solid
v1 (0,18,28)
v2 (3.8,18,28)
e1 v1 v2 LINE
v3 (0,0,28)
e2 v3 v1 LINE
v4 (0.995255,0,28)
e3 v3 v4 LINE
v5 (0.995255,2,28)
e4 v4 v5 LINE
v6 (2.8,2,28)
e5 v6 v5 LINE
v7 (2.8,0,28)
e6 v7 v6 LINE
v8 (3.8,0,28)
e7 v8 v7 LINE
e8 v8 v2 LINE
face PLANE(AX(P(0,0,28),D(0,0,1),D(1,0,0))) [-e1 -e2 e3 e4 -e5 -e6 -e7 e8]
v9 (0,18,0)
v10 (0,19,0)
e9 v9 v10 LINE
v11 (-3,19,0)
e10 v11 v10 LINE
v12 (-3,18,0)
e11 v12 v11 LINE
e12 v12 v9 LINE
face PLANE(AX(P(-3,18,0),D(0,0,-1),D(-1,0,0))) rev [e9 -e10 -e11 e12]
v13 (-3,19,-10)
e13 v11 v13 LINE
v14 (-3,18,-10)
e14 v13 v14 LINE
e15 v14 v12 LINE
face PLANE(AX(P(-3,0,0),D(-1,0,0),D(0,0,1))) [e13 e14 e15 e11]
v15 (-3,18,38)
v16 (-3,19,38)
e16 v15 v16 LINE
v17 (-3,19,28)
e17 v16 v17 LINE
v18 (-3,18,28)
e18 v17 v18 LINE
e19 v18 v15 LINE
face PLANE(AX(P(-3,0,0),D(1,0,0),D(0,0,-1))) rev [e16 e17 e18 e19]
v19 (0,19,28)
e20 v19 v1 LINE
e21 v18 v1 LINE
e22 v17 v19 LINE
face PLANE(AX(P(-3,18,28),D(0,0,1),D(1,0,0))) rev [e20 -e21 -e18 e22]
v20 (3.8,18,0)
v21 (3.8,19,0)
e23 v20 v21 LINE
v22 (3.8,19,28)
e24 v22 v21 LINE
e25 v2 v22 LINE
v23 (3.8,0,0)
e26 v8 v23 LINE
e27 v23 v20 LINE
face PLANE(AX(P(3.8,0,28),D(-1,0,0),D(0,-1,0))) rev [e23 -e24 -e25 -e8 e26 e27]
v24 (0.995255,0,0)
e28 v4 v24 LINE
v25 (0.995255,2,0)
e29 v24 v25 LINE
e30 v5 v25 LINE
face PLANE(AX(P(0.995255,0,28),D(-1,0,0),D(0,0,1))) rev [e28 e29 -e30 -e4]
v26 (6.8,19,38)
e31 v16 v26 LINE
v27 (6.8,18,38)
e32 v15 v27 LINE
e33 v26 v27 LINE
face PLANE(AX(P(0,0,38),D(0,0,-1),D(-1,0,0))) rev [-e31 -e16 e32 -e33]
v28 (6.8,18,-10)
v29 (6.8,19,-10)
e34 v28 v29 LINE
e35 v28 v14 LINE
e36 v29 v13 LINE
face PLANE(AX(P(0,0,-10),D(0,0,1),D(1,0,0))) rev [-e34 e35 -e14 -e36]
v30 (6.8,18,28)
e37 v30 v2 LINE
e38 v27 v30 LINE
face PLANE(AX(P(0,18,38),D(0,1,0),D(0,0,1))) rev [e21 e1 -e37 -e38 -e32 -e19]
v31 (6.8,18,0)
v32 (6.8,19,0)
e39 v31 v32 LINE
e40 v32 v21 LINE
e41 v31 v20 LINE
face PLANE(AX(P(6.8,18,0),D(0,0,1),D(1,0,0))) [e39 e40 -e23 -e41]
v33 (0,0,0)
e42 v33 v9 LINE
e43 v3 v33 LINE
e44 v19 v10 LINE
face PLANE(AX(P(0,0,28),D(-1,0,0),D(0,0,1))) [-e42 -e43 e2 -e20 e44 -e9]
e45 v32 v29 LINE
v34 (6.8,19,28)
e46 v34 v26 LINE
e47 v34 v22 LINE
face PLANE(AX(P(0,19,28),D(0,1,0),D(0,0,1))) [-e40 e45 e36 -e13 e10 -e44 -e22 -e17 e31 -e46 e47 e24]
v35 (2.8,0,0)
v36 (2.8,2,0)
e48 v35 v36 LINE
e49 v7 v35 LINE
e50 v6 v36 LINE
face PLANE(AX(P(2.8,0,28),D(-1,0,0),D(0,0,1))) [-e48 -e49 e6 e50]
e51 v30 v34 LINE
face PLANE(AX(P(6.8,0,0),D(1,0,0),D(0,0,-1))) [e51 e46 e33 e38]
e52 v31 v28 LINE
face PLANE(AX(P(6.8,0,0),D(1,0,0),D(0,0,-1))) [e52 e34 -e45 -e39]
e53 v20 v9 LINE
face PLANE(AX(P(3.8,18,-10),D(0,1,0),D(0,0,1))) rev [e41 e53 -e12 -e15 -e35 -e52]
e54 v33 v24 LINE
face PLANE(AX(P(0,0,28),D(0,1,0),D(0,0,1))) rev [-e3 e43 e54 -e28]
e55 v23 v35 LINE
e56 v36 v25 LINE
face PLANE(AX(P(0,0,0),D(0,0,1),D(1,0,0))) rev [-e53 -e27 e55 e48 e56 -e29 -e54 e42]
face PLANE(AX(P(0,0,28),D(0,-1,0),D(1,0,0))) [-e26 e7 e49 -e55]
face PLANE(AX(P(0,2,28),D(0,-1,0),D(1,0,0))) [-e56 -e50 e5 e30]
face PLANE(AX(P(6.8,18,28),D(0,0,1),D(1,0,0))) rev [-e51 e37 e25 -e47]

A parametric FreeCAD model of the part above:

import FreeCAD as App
import Part
import Sketcher

V = App.Vector

doc = App.newDocument("Part")
body = doc.addObject("PartDesign::Body", "Body")

# Sketch on XY plane
sketch1 = body.newObject("Sketcher::SketchObject", "Sketch")
sketch1.AttachmentSupport = (doc.getObject("XY_Plane"), [""])
sketch1.MapMode = "FlatFace"
sketch1.addGeometry(Part.LineSegment(V(2.8, 0, 0), V(3.8, 0, 0)), False)
sketch1.addGeometry(Part.LineSegment(V(3.8, 0, 0), V(3.8, 19, 0)), False)
sketch1.addGeometry(Part.LineSegment(V(3.8, 19, 0), V(0, 19, 0)), False)
sketch1.addGeometry(Part.LineSegment(V(0, 19, 0), V(0, 0, 0)), False)
sketch1.addGeometry(Part.LineSegment(V(0, 0, 0), V(1, 0, 0)), False)
sketch1.addGeometry(Part.LineSegment(V(1, 0, 0), V(1, 2, 0)), False)
sketch1.addGeometry(Part.LineSegment(V(1, 2, 0), V(2.8, 2, 0)), False)
sketch1.addGeometry(Part.LineSegment(V(2.8, 2, 0), V(2.8, 0, 0)), False)
sketch1.addConstraint(Sketcher.Constraint("Coincident", 0, 2, 1, 1))
sketch1.addConstraint(Sketcher.Constraint("Coincident", 1, 2, 2, 1))
sketch1.addConstraint(Sketcher.Constraint("Coincident", 2, 2, 3, 1))
sketch1.addConstraint(Sketcher.Constraint("Coincident", 3, 2, 4, 1))
sketch1.addConstraint(Sketcher.Constraint("Coincident", 4, 2, 5, 1))
sketch1.addConstraint(Sketcher.Constraint("Coincident", 5, 2, 6, 1))
sketch1.addConstraint(Sketcher.Constraint("Coincident", 6, 2, 7, 1))
sketch1.addConstraint(Sketcher.Constraint("Coincident", 7, 2, 0, 1))
sketch1.addConstraint(Sketcher.Constraint("Horizontal", 0))
sketch1.addConstraint(Sketcher.Constraint("Vertical", 1))
sketch1.addConstraint(Sketcher.Constraint("Horizontal", 2))
sketch1.addConstraint(Sketcher.Constraint("Vertical", 3))
sketch1.addConstraint(Sketcher.Constraint("Horizontal", 4))
sketch1.addConstraint(Sketcher.Constraint("Vertical", 5))
sketch1.addConstraint(Sketcher.Constraint("Horizontal", 6))
sketch1.addConstraint(Sketcher.Constraint("Vertical", 7))
sketch1.addConstraint(Sketcher.Constraint("Coincident", 3, 2, -1, 1))
sketch1.addConstraint(Sketcher.Constraint("PointOnObject", 0, 2, -1))
sketch1.addConstraint(Sketcher.Constraint("DistanceX", 0, 1, 0, 2, 1.0))
sketch1.addConstraint(Sketcher.Constraint("DistanceY", 1, 1, 1, 2, 19.0))
sketch1.addConstraint(Sketcher.Constraint("DistanceY", 5, 1, 5, 2, 2.0))
sketch1.addConstraint(Sketcher.Constraint("DistanceX", 2, 2, 2, 1, 3.8))
sketch1.addConstraint(Sketcher.Constraint("DistanceX", 4, 1, 4, 2, 0.995255))
pad1 = body.newObject("PartDesign::Pad", "Pad")
pad1.Profile = sketch1
pad1.Length = 28

# Sketch on XY plane
sketch2 = body.newObject("Sketcher::SketchObject", "Sketch001")
sketch2.AttachmentSupport = (doc.getObject("XY_Plane"), [""])
sketch2.MapMode = "FlatFace"
sketch2.AttachmentOffset = App.Placement(V(0, 0, 28), App.Rotation())
sketch2.addGeometry(Part.LineSegment(V(0, 19, 0), V(0, 18, 0)), False)
sketch2.addGeometry(Part.LineSegment(V(0, 18, 0), V(3.8, 18, 0)), False)
sketch2.addGeometry(Part.LineSegment(V(3.8, 18, 0), V(3.8, 19, 0)), False)
sketch2.addGeometry(Part.LineSegment(V(3.8, 19, 0), V(0, 19, 0)), False)
sketch2.addConstraint(Sketcher.Constraint("Coincident", 0, 2, 1, 1))
sketch2.addConstraint(Sketcher.Constraint("Coincident", 1, 2, 2, 1))
sketch2.addConstraint(Sketcher.Constraint("Coincident", 2, 2, 3, 1))
sketch2.addConstraint(Sketcher.Constraint("Coincident", 3, 2, 0, 1))
sketch2.addConstraint(Sketcher.Constraint("Vertical", 0))
sketch2.addConstraint(Sketcher.Constraint("Horizontal", 1))
sketch2.addConstraint(Sketcher.Constraint("Vertical", 2))
sketch2.addConstraint(Sketcher.Constraint("Horizontal", 3))
sketch2.addConstraint(Sketcher.Constraint("PointOnObject", 0, 2, -2))
sketch2.addConstraint(Sketcher.Constraint("DistanceY", 0, 2, 0, 1, 1.0))
sketch2.addConstraint(Sketcher.Constraint("DistanceX", 1, 1, 1, 2, 3.8))
sketch2.addConstraint(Sketcher.Constraint("DistanceY", -1, 1, 0, 2, 18.0))
pad2 = body.newObject("PartDesign::Pad", "Pad001")
pad2.Profile = sketch2
pad2.Length = 10

# Sketch on XY plane
sketch3 = body.newObject("Sketcher::SketchObject", "Sketch002")
sketch3.AttachmentSupport = (doc.getObject("XY_Plane"), [""])
sketch3.MapMode = "FlatFace"
sketch3.addGeometry(Part.LineSegment(V(3.8, 19, 0), V(3.8, 18, 0)), False)
sketch3.addGeometry(Part.LineSegment(V(3.8, 18, 0), V(0, 18, 0)), False)
sketch3.addGeometry(Part.LineSegment(V(0, 18, 0), V(0, 19, 0)), False)
sketch3.addGeometry(Part.LineSegment(V(0, 19, 0), V(3.8, 19, 0)), False)
sketch3.addConstraint(Sketcher.Constraint("Coincident", 0, 2, 1, 1))
sketch3.addConstraint(Sketcher.Constraint("Coincident", 1, 2, 2, 1))
sketch3.addConstraint(Sketcher.Constraint("Coincident", 2, 2, 3, 1))
sketch3.addConstraint(Sketcher.Constraint("Coincident", 3, 2, 0, 1))
sketch3.addConstraint(Sketcher.Constraint("Vertical", 0))
sketch3.addConstraint(Sketcher.Constraint("Horizontal", 1))
sketch3.addConstraint(Sketcher.Constraint("Vertical", 2))
sketch3.addConstraint(Sketcher.Constraint("Horizontal", 3))
sketch3.addConstraint(Sketcher.Constraint("PointOnObject", 1, 2, -2))
sketch3.addConstraint(Sketcher.Constraint("DistanceY", 0, 2, 0, 1, 1.0))
sketch3.addConstraint(Sketcher.Constraint("DistanceX", 1, 2, 1, 1, 3.8))
sketch3.addConstraint(Sketcher.Constraint("DistanceY", -1, 1, 0, 2, 18.0))
pad3 = body.newObject("PartDesign::Pad", "Pad002")
pad3.Profile = sketch3
pad3.Length = 10
pad3.Reversed = True

# Sketch on YZ plane
sketch4 = body.newObject("Sketcher::SketchObject", "Sketch003")
sketch4.AttachmentSupport = (doc.getObject("YZ_Plane"), [""])
sketch4.MapMode = "FlatFace"
sketch4.AttachmentOffset = App.Placement(V(0, 0, 3.8), App.Rotation())
sketch4.addGeometry(Part.LineSegment(V(19, 0, 0), V(18, 0, 0)), False)
sketch4.addGeometry(Part.LineSegment(V(18, 0, 0), V(18, -10, 0)), False)
sketch4.addGeometry(Part.LineSegment(V(18, -10, 0), V(19, -10, 0)), False)
sketch4.addGeometry(Part.LineSegment(V(19, -10, 0), V(19, 0, 0)), False)
sketch4.addConstraint(Sketcher.Constraint("Coincident", 0, 2, 1, 1))
sketch4.addConstraint(Sketcher.Constraint("Coincident", 1, 2, 2, 1))
sketch4.addConstraint(Sketcher.Constraint("Coincident", 2, 2, 3, 1))
sketch4.addConstraint(Sketcher.Constraint("Coincident", 3, 2, 0, 1))
sketch4.addConstraint(Sketcher.Constraint("Horizontal", 0))
sketch4.addConstraint(Sketcher.Constraint("Vertical", 1))
sketch4.addConstraint(Sketcher.Constraint("Horizontal", 2))
sketch4.addConstraint(Sketcher.Constraint("Vertical", 3))
sketch4.addConstraint(Sketcher.Constraint("PointOnObject", 0, 2, -1))
sketch4.addConstraint(Sketcher.Constraint("DistanceX", 0, 2, 0, 1, 1.0))
sketch4.addConstraint(Sketcher.Constraint("DistanceY", 1, 2, 1, 1, 10.0))
sketch4.addConstraint(Sketcher.Constraint("DistanceX", -1, 1, 0, 2, 18.0))
pad4 = body.newObject("PartDesign::Pad", "Pad003")
pad4.Profile = sketch4
pad4.Length = 3

# Sketch on YZ plane
sketch5 = body.newObject("Sketcher::SketchObject", "Sketch004")
sketch5.AttachmentSupport = (doc.getObject("YZ_Plane"), [""])
sketch5.MapMode = "FlatFace"
sketch5.addGeometry(Part.LineSegment(V(19, -10, 0), V(18, -10, 0)), False)
sketch5.addGeometry(Part.LineSegment(V(18, -10, 0), V(18, 0, 0)), False)
sketch5.addGeometry(Part.LineSegment(V(18, 0, 0), V(19, 0, 0)), False)
sketch5.addGeometry(Part.LineSegment(V(19, 0, 0), V(19, -10, 0)), False)
sketch5.addConstraint(Sketcher.Constraint("Coincident", 0, 2, 1, 1))
sketch5.addConstraint(Sketcher.Constraint("Coincident", 1, 2, 2, 1))
sketch5.addConstraint(Sketcher.Constraint("Coincident", 2, 2, 3, 1))
sketch5.addConstraint(Sketcher.Constraint("Coincident", 3, 2, 0, 1))
sketch5.addConstraint(Sketcher.Constraint("Horizontal", 0))
sketch5.addConstraint(Sketcher.Constraint("Vertical", 1))
sketch5.addConstraint(Sketcher.Constraint("Horizontal", 2))
sketch5.addConstraint(Sketcher.Constraint("Vertical", 3))
sketch5.addConstraint(Sketcher.Constraint("PointOnObject", 1, 2, -1))
sketch5.addConstraint(Sketcher.Constraint("DistanceX", 0, 2, 0, 1, 1.0))
sketch5.addConstraint(Sketcher.Constraint("DistanceY", 1, 1, 1, 2, 10.0))
sketch5.addConstraint(Sketcher.Constraint("DistanceX", -1, 1, 0, 2, 18.0))
pad5 = body.newObject("PartDesign::Pad", "Pad004")
pad5.Profile = sketch5
pad5.Length = 3
pad5.Reversed = True

# Sketch on YZ plane
sketch6 = body.newObject("Sketcher::SketchObject", "Sketch005")
sketch6.AttachmentSupport = (doc.getObject("YZ_Plane"), [""])
sketch6.MapMode = "FlatFace"
sketch6.addGeometry(Part.LineSegment(V(19, 28, 0), V(18, 28, 0)), False)
sketch6.addGeometry(Part.LineSegment(V(18, 28, 0), V(18, 38, 0)), False)
sketch6.addGeometry(Part.LineSegment(V(18, 38, 0), V(19, 38, 0)), False)
sketch6.addGeometry(Part.LineSegment(V(19, 38, 0), V(19, 28, 0)), False)
sketch6.addConstraint(Sketcher.Constraint("Coincident", 0, 2, 1, 1))
sketch6.addConstraint(Sketcher.Constraint("Coincident", 1, 2, 2, 1))
sketch6.addConstraint(Sketcher.Constraint("Coincident", 2, 2, 3, 1))
sketch6.addConstraint(Sketcher.Constraint("Coincident", 3, 2, 0, 1))
sketch6.addConstraint(Sketcher.Constraint("Horizontal", 0))
sketch6.addConstraint(Sketcher.Constraint("Vertical", 1))
sketch6.addConstraint(Sketcher.Constraint("Horizontal", 2))
sketch6.addConstraint(Sketcher.Constraint("Vertical", 3))
sketch6.addConstraint(Sketcher.Constraint("DistanceX", 0, 2, 0, 1, 1.0))
sketch6.addConstraint(Sketcher.Constraint("DistanceY", 1, 1, 1, 2, 10.0))
sketch6.addConstraint(Sketcher.Constraint("DistanceX", -1, 1, 0, 2, 18.0))
sketch6.addConstraint(Sketcher.Constraint("DistanceY", -1, 1, 0, 2, 28.0))
pad6 = body.newObject("PartDesign::Pad", "Pad005")
pad6.Profile = sketch6
pad6.Length = 3
pad6.Reversed = True

# Sketch on YZ plane
sketch7 = body.newObject("Sketcher::SketchObject", "Sketch006")
sketch7.AttachmentSupport = (doc.getObject("YZ_Plane"), [""])
sketch7.MapMode = "FlatFace"
sketch7.AttachmentOffset = App.Placement(V(0, 0, 3.8), App.Rotation())
sketch7.addGeometry(Part.LineSegment(V(19, 38, 0), V(18, 38, 0)), False)
sketch7.addGeometry(Part.LineSegment(V(18, 38, 0), V(18, 28, 0)), False)
sketch7.addGeometry(Part.LineSegment(V(18, 28, 0), V(19, 28, 0)), False)
sketch7.addGeometry(Part.LineSegment(V(19, 28, 0), V(19, 38, 0)), False)
sketch7.addConstraint(Sketcher.Constraint("Coincident", 0, 2, 1, 1))
sketch7.addConstraint(Sketcher.Constraint("Coincident", 1, 2, 2, 1))
sketch7.addConstraint(Sketcher.Constraint("Coincident", 2, 2, 3, 1))
sketch7.addConstraint(Sketcher.Constraint("Coincident", 3, 2, 0, 1))
sketch7.addConstraint(Sketcher.Constraint("Horizontal", 0))
sketch7.addConstraint(Sketcher.Constraint("Vertical", 1))
sketch7.addConstraint(Sketcher.Constraint("Horizontal", 2))
sketch7.addConstraint(Sketcher.Constraint("Vertical", 3))
sketch7.addConstraint(Sketcher.Constraint("DistanceX", 0, 2, 0, 1, 1.0))
sketch7.addConstraint(Sketcher.Constraint("DistanceY", 1, 2, 1, 1, 10.0))
sketch7.addConstraint(Sketcher.Constraint("DistanceX", -1, 1, 0, 2, 18.0))
sketch7.addConstraint(Sketcher.Constraint("DistanceY", -1, 1, 0, 2, 38.0))
pad7 = body.newObject("PartDesign::Pad", "Pad006")
pad7.Profile = sketch7
pad7.Length = 3

doc.recompute()
